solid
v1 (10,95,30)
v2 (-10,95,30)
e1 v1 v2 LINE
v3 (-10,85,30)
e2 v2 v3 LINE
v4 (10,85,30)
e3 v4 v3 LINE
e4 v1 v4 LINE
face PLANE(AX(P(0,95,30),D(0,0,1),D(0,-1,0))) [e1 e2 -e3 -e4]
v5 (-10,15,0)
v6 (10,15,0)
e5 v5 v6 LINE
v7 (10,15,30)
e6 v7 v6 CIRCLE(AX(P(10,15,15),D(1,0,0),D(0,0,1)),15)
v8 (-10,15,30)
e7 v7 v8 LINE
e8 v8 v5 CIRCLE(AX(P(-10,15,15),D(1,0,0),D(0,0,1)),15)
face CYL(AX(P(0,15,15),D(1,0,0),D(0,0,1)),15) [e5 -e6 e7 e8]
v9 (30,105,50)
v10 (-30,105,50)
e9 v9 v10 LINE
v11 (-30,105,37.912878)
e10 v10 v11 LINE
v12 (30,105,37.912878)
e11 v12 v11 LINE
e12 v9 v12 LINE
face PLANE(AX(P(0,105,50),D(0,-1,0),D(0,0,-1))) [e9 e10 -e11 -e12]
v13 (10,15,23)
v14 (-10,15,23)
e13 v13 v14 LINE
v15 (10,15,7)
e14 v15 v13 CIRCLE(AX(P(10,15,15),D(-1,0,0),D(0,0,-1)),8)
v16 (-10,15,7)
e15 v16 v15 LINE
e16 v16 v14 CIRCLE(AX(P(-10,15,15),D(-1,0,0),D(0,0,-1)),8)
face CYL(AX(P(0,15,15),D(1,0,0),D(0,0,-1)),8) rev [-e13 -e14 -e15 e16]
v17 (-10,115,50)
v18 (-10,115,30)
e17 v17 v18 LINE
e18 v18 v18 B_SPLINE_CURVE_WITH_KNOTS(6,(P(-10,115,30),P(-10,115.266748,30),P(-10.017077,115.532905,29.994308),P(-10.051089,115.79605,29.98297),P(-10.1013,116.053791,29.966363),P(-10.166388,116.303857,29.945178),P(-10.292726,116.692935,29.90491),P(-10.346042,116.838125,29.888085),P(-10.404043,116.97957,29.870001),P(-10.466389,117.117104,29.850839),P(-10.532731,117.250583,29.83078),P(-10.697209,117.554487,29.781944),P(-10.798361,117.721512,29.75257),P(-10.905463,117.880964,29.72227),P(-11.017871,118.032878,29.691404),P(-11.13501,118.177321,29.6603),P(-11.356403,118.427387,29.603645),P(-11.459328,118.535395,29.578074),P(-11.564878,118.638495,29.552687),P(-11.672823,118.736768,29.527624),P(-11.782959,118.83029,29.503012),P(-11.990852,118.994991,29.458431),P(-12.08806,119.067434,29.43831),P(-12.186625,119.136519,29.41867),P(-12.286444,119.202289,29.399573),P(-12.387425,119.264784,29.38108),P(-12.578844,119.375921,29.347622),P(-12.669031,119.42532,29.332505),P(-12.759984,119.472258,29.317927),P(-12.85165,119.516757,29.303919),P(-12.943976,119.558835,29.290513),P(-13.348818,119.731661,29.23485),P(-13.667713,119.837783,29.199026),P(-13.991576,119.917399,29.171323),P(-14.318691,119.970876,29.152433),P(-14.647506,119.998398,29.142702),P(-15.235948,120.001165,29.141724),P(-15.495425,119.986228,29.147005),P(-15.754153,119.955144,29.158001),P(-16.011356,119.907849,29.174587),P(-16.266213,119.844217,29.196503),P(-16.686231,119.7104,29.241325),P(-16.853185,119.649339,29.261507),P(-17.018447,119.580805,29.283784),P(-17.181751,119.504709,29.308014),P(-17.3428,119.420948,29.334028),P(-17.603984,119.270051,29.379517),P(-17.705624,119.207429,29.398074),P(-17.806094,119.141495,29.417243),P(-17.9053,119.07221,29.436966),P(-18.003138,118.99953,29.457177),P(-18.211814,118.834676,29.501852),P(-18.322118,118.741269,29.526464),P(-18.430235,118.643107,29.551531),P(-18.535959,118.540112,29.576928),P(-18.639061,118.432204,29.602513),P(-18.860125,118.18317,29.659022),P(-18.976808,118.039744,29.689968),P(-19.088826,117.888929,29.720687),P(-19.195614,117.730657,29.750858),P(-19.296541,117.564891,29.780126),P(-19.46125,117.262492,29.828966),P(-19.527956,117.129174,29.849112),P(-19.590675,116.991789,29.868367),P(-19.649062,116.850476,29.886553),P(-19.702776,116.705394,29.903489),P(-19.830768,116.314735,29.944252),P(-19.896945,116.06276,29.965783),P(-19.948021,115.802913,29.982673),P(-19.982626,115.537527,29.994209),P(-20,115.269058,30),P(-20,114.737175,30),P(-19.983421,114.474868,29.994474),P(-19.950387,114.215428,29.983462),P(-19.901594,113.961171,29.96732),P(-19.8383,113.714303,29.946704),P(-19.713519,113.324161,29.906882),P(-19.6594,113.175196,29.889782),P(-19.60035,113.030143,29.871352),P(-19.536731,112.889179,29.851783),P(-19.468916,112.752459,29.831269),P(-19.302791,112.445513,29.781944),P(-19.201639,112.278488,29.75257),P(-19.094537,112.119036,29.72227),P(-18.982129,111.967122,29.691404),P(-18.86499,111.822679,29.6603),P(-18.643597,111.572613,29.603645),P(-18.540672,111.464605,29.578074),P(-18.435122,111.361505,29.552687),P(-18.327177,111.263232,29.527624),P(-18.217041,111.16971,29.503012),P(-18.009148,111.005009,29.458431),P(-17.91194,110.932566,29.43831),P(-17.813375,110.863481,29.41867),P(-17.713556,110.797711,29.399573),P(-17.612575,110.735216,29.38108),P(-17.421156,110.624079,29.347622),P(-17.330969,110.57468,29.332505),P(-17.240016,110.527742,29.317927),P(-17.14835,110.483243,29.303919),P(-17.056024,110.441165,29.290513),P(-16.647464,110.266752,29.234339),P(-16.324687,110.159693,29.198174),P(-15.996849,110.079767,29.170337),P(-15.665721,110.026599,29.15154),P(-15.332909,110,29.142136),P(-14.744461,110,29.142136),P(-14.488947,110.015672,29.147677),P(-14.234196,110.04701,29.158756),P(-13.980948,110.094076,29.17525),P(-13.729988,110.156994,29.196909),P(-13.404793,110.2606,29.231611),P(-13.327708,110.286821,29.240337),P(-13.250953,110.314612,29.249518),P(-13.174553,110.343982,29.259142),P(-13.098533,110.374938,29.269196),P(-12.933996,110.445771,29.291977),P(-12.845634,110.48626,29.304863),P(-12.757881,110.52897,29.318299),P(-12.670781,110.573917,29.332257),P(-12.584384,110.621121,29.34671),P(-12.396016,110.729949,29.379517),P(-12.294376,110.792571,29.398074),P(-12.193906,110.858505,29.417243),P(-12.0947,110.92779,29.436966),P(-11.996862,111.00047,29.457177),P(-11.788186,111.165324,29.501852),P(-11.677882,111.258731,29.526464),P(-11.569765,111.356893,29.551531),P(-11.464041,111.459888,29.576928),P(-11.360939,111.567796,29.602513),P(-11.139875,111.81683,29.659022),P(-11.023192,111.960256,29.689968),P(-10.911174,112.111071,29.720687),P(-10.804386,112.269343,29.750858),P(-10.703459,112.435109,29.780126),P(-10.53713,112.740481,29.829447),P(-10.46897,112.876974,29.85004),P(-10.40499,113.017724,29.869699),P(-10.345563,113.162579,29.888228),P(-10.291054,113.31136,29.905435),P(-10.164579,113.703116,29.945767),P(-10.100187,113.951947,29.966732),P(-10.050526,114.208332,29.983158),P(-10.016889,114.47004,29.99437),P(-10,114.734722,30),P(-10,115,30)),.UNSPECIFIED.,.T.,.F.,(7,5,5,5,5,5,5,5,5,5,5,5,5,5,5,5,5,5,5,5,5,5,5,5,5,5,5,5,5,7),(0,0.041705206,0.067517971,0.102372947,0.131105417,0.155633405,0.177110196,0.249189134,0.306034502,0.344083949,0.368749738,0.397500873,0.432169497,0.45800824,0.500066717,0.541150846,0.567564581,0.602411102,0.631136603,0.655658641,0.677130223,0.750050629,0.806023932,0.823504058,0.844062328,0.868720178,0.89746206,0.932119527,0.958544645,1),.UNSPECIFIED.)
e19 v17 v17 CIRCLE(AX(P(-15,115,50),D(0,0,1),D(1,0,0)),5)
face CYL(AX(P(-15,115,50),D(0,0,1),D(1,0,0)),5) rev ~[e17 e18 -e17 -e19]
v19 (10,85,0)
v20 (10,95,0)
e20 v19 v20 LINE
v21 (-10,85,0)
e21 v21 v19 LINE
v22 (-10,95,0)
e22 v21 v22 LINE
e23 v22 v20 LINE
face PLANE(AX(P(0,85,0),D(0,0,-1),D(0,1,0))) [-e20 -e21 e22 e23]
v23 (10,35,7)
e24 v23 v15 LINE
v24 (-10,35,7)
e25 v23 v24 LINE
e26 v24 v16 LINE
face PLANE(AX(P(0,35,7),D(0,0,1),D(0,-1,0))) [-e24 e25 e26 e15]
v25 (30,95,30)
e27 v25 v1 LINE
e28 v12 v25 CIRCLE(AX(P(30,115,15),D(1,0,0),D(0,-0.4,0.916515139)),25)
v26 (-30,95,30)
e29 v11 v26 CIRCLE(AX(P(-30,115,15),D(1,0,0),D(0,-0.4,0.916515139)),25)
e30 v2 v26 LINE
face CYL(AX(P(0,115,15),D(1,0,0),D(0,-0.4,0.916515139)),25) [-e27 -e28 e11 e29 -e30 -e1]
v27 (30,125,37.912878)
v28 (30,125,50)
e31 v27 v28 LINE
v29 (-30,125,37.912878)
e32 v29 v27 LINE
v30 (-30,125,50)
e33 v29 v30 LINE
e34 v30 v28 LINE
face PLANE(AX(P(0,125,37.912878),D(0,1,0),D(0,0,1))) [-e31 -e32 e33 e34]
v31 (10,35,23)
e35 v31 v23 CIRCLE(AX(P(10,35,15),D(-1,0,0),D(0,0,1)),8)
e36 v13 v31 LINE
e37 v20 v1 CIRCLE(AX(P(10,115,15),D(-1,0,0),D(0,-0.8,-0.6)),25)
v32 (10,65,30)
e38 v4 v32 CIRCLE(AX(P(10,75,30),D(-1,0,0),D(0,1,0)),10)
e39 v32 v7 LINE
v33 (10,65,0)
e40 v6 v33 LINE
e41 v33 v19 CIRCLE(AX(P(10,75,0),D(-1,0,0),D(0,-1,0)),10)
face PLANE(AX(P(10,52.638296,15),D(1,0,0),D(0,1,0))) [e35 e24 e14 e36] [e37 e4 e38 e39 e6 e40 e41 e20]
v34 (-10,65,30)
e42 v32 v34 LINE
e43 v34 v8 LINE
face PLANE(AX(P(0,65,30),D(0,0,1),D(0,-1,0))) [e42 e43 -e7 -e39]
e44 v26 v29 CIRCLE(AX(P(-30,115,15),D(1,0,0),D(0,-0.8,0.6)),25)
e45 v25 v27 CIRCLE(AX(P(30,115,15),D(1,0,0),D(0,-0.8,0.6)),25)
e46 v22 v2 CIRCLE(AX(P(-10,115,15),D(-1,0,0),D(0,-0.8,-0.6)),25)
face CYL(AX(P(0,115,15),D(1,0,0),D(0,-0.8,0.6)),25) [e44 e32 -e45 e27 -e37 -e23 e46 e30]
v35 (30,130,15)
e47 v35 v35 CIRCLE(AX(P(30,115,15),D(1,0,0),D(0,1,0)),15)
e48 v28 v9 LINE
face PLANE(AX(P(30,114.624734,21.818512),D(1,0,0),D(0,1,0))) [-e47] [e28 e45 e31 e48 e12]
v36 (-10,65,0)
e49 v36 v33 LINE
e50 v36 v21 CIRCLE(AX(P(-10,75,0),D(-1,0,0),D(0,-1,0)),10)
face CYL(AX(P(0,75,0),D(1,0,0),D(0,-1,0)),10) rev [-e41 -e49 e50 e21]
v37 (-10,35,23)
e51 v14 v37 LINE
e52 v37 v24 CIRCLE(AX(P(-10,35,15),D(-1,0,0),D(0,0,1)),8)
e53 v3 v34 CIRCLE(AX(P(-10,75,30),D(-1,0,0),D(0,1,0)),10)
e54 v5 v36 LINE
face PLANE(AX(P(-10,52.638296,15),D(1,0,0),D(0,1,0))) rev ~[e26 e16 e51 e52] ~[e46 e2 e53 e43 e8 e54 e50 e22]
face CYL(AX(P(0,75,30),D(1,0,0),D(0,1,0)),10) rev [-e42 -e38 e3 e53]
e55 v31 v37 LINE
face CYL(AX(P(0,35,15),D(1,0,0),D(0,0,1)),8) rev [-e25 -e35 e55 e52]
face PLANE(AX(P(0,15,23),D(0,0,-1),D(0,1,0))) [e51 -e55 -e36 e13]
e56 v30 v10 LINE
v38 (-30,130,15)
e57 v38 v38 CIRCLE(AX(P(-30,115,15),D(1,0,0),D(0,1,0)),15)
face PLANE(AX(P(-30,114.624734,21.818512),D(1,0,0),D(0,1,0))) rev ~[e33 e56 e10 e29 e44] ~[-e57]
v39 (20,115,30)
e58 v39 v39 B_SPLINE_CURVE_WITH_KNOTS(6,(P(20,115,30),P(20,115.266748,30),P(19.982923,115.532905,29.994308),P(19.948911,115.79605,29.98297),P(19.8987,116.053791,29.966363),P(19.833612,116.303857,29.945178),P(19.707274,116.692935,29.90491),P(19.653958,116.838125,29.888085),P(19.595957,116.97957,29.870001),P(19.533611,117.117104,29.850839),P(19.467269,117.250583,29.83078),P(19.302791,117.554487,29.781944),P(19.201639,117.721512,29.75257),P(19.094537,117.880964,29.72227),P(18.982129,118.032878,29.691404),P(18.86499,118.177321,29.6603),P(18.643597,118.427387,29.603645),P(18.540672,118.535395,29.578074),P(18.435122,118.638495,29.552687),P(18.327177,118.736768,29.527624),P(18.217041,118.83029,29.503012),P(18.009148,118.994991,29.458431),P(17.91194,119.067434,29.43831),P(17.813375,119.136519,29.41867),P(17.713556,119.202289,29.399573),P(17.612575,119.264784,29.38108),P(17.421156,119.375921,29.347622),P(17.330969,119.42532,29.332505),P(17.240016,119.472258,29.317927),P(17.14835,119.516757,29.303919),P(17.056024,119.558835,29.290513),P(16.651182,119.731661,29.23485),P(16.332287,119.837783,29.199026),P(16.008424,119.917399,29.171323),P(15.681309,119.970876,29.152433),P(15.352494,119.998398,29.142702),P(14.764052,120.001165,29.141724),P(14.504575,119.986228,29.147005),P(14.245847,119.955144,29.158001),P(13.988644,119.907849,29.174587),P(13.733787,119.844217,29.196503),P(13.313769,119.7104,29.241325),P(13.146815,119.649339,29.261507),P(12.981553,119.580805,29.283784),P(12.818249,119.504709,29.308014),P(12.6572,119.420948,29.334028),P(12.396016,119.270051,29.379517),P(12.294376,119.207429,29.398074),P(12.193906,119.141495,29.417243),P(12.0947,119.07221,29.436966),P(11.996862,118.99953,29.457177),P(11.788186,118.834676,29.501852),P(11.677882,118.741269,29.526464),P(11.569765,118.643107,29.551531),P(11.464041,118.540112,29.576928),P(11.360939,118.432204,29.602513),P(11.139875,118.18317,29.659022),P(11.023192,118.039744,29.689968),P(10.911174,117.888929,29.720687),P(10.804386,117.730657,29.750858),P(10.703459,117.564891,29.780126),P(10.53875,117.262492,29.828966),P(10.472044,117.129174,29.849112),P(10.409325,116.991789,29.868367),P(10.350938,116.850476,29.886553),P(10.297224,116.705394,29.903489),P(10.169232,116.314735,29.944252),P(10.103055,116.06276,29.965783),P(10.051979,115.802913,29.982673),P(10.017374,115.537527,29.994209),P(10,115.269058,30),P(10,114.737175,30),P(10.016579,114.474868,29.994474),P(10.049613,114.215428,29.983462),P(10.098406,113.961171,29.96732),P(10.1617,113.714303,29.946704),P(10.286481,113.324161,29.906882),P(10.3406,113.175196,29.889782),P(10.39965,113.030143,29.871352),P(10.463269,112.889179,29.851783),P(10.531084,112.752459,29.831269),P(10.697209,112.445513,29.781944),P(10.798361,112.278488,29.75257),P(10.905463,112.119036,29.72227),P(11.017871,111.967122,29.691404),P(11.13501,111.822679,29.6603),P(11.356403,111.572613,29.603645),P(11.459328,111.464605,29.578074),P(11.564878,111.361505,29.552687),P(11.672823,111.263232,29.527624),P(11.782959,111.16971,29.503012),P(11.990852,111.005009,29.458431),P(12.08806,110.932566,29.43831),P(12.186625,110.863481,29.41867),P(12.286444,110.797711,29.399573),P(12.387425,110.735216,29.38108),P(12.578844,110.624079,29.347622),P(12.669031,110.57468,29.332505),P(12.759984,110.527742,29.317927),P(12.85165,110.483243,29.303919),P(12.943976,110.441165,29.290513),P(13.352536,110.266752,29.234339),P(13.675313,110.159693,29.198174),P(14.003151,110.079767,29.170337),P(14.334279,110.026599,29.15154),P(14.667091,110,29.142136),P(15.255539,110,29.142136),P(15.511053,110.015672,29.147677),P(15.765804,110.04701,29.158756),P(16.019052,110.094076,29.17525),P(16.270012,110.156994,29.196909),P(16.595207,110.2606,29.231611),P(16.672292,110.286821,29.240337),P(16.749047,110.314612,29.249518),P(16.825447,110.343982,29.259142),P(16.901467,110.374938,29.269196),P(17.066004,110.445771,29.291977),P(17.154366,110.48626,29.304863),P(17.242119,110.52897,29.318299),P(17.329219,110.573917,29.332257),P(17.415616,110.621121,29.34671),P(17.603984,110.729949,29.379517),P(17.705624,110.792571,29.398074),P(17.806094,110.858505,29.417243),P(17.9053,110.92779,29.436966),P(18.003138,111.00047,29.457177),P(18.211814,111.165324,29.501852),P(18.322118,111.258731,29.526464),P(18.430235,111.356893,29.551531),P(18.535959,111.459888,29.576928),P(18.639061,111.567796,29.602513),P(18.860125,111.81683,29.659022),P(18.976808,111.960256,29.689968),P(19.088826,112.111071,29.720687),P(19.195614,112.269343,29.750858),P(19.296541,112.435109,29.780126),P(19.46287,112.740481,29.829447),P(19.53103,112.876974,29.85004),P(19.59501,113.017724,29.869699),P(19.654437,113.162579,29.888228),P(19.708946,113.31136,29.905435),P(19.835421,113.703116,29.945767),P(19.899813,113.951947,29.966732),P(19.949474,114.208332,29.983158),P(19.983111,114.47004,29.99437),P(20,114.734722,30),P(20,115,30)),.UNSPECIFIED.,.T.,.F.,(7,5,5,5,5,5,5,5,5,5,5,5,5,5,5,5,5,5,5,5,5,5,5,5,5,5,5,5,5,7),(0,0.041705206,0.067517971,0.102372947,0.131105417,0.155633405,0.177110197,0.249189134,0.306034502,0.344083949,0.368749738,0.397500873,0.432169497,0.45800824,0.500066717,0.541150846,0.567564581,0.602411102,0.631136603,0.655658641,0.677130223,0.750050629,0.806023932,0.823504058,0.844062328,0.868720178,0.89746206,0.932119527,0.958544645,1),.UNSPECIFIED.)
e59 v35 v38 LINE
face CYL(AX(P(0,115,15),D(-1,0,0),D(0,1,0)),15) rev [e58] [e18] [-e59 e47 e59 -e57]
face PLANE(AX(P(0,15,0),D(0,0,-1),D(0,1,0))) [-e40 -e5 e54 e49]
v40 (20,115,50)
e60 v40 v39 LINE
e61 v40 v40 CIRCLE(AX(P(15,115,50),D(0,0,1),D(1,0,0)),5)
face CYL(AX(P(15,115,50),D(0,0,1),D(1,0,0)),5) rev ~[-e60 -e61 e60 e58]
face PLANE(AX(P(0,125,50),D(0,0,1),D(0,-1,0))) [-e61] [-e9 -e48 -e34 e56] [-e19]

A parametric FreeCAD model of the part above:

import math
import FreeCAD as App
import Part
import Sketcher
from FreeCAD import Vector
Q = App.Units.Quantity

doc = App.newDocument("Part")
params = doc.addObject("Spreadsheet::Sheet", "Params")
for row, (alias, value) in enumerate([
    ("sketch1_diameter", "30 mm"),
    ("sketch1_radius", "25 mm"),
    ("sketch1_width", "20 mm"),
    ("pad1_length", "60 mm"),
    ("sketch2_radius", "15 mm"),
    ("sketch2_radius2", "10 mm"),
    ("sketch2_radius3", "25 mm"),
    ("sketch2_radius4", "8 mm"),
    ("sketch2_width", "50 mm"),
    ("pad2_length", "20 mm"),
    ("sketch3_diameter", "10 mm"),
    ("pocket1_length", "20.858864 mm"),
], start=1):
    params.set(f"A{row}", alias)
    params.set(f"B{row}", "=" + value)
    params.setAlias(f"B{row}", alias)

body = doc.addObject("PartDesign::Body", "Body")

# Sketch on YZ plane
sketch1 = body.newObject("Sketcher::SketchObject", "Sketch")
sketch1.AttachmentSupport = (doc.getObject("YZ_Plane"), [""])
sketch1.MapMode = "FlatFace"
sketch1.addGeometry([
    Part.ArcOfCircle(Part.Circle(Vector(115, 15, 0), Vector(0, 0, 1), 25), math.radians(143), math.radians(426)),  # 0
    Part.LineSegment(Vector(125, 38, 0), Vector(125, 50, 0)),  # 1
    Part.LineSegment(Vector(125, 50, 0), Vector(105, 50, 0)),  # 2
    Part.LineSegment(Vector(105, 50, 0), Vector(105, 38, 0)),  # 3
    Part.ArcOfCircle(Part.Circle(Vector(115, 15, 0), Vector(0, 0, 1), 25), math.radians(114), math.radians(143)),  # 4
    Part.Circle(Vector(115, 15, 0), Vector(0, 0, 1), 15),  # 5
], False)
sketch1.addConstraint([
    Sketcher.Constraint("Coincident", 0, 2, 1, 1),
    Sketcher.Constraint("Coincident", 1, 2, 2, 1),
    Sketcher.Constraint("Coincident", 2, 2, 3, 1),
    Sketcher.Constraint("Coincident", 3, 2, 4, 1),
    Sketcher.Constraint("Tangent", 4, 2, 0, 1),
    Sketcher.Constraint("Vertical", 1),
    Sketcher.Constraint("Horizontal", 2),
    Sketcher.Constraint("Vertical", 3),
    Sketcher.Constraint("Coincident", 5, 3, 0, 3),
    Sketcher.Constraint("Equal", 0, 4),
    Sketcher.Constraint("Horizontal", 0, 2, 3, 2),
    Sketcher.Constraint("Diameter", 5, Q("30 mm")),
    Sketcher.Constraint("Radius", 0, Q("25 mm")),
    Sketcher.Constraint("DistanceX", 2, 2, 2, 1, Q("20 mm")),
    Sketcher.Constraint("DistanceX", -1, 1, 0, 3, Q("115 mm")),
    Sketcher.Constraint("DistanceY", -1, 1, 0, 3, Q("15 mm")),
    Sketcher.Constraint("DistanceY", -1, 1, 1, 2, Q("50 mm")),
    Sketcher.Constraint("DistanceX", -1, 1, 4, 2, Q("95 mm")),
])
sketch1.setExpression("Constraints[11]", "Params.sketch1_diameter")
sketch1.setExpression("Constraints[12]", "Params.sketch1_radius")
sketch1.setExpression("Constraints[13]", "Params.sketch1_width")
pad1 = body.newObject("PartDesign::Pad", "Pad")
pad1.Profile = sketch1
pad1.setExpression("Length", "Params.pad1_length")
pad1.Midplane = True

# Sketch on YZ plane
sketch2 = body.newObject("Sketcher::SketchObject", "Sketch001")
sketch2.AttachmentSupport = (doc.getObject("YZ_Plane"), [""])
sketch2.MapMode = "FlatFace"
sketch2.addGeometry([
    Part.ArcOfCircle(Part.Circle(Vector(15, 15, 0), Vector(0, 0, 1), 15), math.radians(90), math.radians(270)),  # 0
    Part.LineSegment(Vector(15, 0, 0), Vector(65, 0, 0)),  # 1
    Part.ArcOfCircle(Part.Circle(Vector(75, 0, 0), Vector(0, 0, 1), 10), math.radians(0), math.radians(180)),  # 2
    Part.LineSegment(Vector(85, 0, 0), Vector(95, 0, 0)),  # 3
    Part.ArcOfCircle(Part.Circle(Vector(115, 15, 0), Vector(0, 0, 1), 25), math.radians(143), math.radians(217)),  # 4
    Part.LineSegment(Vector(95, 30, 0), Vector(85, 30, 0)),  # 5
    Part.ArcOfCircle(Part.Circle(Vector(75, 30, 0), Vector(0, 0, 1), 10), math.radians(180), math.radians(360)),  # 6
    Part.LineSegment(Vector(65, 30, 0), Vector(15, 30, 0)),  # 7
    Part.LineSegment(Vector(35, 7, 0), Vector(15, 7, 0)),  # 8
    Part.ArcOfCircle(Part.Circle(Vector(15, 15, 0), Vector(0, 0, 1), 8), math.radians(90), math.radians(270)),  # 9
    Part.LineSegment(Vector(15, 23, 0), Vector(35, 23, 0)),  # 10
    Part.ArcOfCircle(Part.Circle(Vector(35, 15, 0), Vector(0, 0, 1), 8), math.radians(-90), math.radians(90)),  # 11
], False)
sketch2.addConstraint([
    Sketcher.Constraint("Tangent", 0, 2, 1, 1),
    Sketcher.Constraint("Coincident", 1, 2, 2, 2),
    Sketcher.Constraint("Coincident", 2, 1, 3, 1),
    Sketcher.Constraint("Coincident", 3, 2, 4, 2),
    Sketcher.Constraint("Coincident", 4, 1, 5, 1),
    Sketcher.Constraint("Coincident", 5, 2, 6, 2),
    Sketcher.Constraint("Coincident", 6, 1, 7, 1),
    Sketcher.Constraint("Tangent", 7, 2, 0, 1),
    Sketcher.Constraint("Tangent", 8, 2, 9, 2),
    Sketcher.Constraint("Tangent", 9, 1, 10, 1),
    Sketcher.Constraint("Tangent", 10, 2, 11, 2),
    Sketcher.Constraint("Tangent", 11, 1, 8, 1),
    Sketcher.Constraint("Horizontal", 1),
    Sketcher.Constraint("Horizontal", 3),
    Sketcher.Constraint("Horizontal", 5),
    Sketcher.Constraint("Horizontal", 7),
    Sketcher.Constraint("Horizontal", 8),
    Sketcher.Constraint("Horizontal", 10),
    Sketcher.Constraint("Coincident", 9, 3, 0, 3),
    Sketcher.Constraint("Equal", 2, 6),
    Sketcher.Constraint("PointOnObject", 2, 3, -1),
    Sketcher.Constraint("PointOnObject", 0, 2, -1),
    Sketcher.Constraint("PointOnObject", 2, 1, -1),
    Sketcher.Constraint("Horizontal", 0, 3, 4, 3),
    Sketcher.Constraint("Horizontal", 6, 3, 4, 1),
    Sketcher.Constraint("Horizontal", 5, 2, 6, 1),
    Sketcher.Constraint("Vertical", 2, 3, 6, 3),
    Sketcher.Constraint("Radius", 0, Q("15 mm")),
    Sketcher.Constraint("Radius", 2, Q("10 mm")),
    Sketcher.Constraint("Radius", 4, Q("25 mm")),
    Sketcher.Constraint("Radius", 9, Q("8 mm")),
    Sketcher.Constraint("DistanceX", 1, 1, 1, 2, Q("50 mm")),
    Sketcher.Constraint("DistanceX", 3, 1, 3, 2, Q("10 mm")),
    Sketcher.Constraint("DistanceX", 8, 2, 8, 1, Q("20 mm")),
    Sketcher.Constraint("DistanceX", -1, 1, 0, 3, Q("15 mm")),
])
sketch2.setExpression("Constraints[27]", "Params.sketch2_radius")
sketch2.setExpression("Constraints[28]", "Params.sketch2_radius2")
sketch2.setExpression("Constraints[29]", "Params.sketch2_radius3")
sketch2.setExpression("Constraints[30]", "Params.sketch2_radius4")
sketch2.setExpression("Constraints[31]", "Params.sketch2_width")
pad2 = body.newObject("PartDesign::Pad", "Pad001")
pad2.Profile = sketch2
pad2.setExpression("Length", "Params.pad2_length")
pad2.Midplane = True

# Sketch on XY plane
sketch3 = body.newObject("Sketcher::SketchObject", "Sketch002")
sketch3.AttachmentSupport = (doc.getObject("XY_Plane"), [""])
sketch3.MapMode = "FlatFace"
sketch3.AttachmentOffset = App.Placement(Vector(0, 0, 50), App.Rotation())
sketch3.addGeometry([
    Part.Circle(Vector(15, 115, 0), Vector(0, 0, 1), 5),
    Part.Circle(Vector(-15, 115, 0), Vector(0, 0, 1), 5),
], False)
sketch3.addConstraint([
    Sketcher.Constraint("Equal", 0, 1),
    Sketcher.Constraint("Symmetric", 0, 3, 1, 3, -2),
    Sketcher.Constraint("Diameter", 0, Q("10 mm")),
    Sketcher.Constraint("DistanceX", -1, 1, 0, 3, Q("15 mm")),
    Sketcher.Constraint("DistanceY", -1, 1, 0, 3, Q("115 mm")),
])
sketch3.setExpression("Constraints[2]", "Params.sketch3_diameter")
pocket1 = body.newObject("PartDesign::Pocket", "Pocket")
pocket1.Profile = sketch3
pocket1.setExpression("Length", "Params.pocket1_length")

doc.recompute()
